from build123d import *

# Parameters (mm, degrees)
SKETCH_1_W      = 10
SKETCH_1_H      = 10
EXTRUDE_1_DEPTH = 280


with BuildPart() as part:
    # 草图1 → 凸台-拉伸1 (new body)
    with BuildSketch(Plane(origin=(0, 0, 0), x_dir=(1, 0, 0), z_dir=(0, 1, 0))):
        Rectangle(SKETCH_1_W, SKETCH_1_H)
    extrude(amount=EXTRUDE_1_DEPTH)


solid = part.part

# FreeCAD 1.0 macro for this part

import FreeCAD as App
import Part
import Sketcher
Q = App.Units.Quantity


def add_polygon(sketch, points):
    """Adds a closed chain of lines whose ends are joined by coincident constraints."""
    first, n = sketch.GeometryCount, len(points)
    for a, b in zip(points, points[1:] + points[:1]):
        sketch.addGeometry(Part.LineSegment(App.Vector(*a, 0), App.Vector(*b, 0)), False)
    for i in range(n):
        sketch.addConstraint(Sketcher.Constraint("Coincident", first + i, 2, first + (i + 1) % n, 1))

doc = App.newDocument("Part")
body = doc.addObject("PartDesign::Body", "Body")

# Sketch on XZ plane
sketch1 = body.newObject("Sketcher::SketchObject", "Sketch")
sketch1.AttachmentSupport = (doc.getObject("XZ_Plane"), [""])
sketch1.MapMode = "FlatFace"
add_polygon(sketch1, [(-5, -5), (-5, 5), (5, 5), (5, -5)])  # lines 0-3
sketch1.addConstraint([
    Sketcher.Constraint("Vertical", 0),
    Sketcher.Constraint("Horizontal", 1),
    Sketcher.Constraint("Vertical", 2),
    Sketcher.Constraint("Horizontal", 3),
    Sketcher.Constraint("Symmetric", 0, 2, 2, 2, -1, 1),
    Sketcher.Constraint("Equal", 3, 0),
    Sketcher.Constraint("DistanceX", 1, 1, 1, 2, Q("10 mm")),
])
pad1 = body.newObject("PartDesign::Pad", "Pad")
pad1.Profile = sketch1
pad1.Length = 280
pad1.Reversed = True

doc.recompute()
